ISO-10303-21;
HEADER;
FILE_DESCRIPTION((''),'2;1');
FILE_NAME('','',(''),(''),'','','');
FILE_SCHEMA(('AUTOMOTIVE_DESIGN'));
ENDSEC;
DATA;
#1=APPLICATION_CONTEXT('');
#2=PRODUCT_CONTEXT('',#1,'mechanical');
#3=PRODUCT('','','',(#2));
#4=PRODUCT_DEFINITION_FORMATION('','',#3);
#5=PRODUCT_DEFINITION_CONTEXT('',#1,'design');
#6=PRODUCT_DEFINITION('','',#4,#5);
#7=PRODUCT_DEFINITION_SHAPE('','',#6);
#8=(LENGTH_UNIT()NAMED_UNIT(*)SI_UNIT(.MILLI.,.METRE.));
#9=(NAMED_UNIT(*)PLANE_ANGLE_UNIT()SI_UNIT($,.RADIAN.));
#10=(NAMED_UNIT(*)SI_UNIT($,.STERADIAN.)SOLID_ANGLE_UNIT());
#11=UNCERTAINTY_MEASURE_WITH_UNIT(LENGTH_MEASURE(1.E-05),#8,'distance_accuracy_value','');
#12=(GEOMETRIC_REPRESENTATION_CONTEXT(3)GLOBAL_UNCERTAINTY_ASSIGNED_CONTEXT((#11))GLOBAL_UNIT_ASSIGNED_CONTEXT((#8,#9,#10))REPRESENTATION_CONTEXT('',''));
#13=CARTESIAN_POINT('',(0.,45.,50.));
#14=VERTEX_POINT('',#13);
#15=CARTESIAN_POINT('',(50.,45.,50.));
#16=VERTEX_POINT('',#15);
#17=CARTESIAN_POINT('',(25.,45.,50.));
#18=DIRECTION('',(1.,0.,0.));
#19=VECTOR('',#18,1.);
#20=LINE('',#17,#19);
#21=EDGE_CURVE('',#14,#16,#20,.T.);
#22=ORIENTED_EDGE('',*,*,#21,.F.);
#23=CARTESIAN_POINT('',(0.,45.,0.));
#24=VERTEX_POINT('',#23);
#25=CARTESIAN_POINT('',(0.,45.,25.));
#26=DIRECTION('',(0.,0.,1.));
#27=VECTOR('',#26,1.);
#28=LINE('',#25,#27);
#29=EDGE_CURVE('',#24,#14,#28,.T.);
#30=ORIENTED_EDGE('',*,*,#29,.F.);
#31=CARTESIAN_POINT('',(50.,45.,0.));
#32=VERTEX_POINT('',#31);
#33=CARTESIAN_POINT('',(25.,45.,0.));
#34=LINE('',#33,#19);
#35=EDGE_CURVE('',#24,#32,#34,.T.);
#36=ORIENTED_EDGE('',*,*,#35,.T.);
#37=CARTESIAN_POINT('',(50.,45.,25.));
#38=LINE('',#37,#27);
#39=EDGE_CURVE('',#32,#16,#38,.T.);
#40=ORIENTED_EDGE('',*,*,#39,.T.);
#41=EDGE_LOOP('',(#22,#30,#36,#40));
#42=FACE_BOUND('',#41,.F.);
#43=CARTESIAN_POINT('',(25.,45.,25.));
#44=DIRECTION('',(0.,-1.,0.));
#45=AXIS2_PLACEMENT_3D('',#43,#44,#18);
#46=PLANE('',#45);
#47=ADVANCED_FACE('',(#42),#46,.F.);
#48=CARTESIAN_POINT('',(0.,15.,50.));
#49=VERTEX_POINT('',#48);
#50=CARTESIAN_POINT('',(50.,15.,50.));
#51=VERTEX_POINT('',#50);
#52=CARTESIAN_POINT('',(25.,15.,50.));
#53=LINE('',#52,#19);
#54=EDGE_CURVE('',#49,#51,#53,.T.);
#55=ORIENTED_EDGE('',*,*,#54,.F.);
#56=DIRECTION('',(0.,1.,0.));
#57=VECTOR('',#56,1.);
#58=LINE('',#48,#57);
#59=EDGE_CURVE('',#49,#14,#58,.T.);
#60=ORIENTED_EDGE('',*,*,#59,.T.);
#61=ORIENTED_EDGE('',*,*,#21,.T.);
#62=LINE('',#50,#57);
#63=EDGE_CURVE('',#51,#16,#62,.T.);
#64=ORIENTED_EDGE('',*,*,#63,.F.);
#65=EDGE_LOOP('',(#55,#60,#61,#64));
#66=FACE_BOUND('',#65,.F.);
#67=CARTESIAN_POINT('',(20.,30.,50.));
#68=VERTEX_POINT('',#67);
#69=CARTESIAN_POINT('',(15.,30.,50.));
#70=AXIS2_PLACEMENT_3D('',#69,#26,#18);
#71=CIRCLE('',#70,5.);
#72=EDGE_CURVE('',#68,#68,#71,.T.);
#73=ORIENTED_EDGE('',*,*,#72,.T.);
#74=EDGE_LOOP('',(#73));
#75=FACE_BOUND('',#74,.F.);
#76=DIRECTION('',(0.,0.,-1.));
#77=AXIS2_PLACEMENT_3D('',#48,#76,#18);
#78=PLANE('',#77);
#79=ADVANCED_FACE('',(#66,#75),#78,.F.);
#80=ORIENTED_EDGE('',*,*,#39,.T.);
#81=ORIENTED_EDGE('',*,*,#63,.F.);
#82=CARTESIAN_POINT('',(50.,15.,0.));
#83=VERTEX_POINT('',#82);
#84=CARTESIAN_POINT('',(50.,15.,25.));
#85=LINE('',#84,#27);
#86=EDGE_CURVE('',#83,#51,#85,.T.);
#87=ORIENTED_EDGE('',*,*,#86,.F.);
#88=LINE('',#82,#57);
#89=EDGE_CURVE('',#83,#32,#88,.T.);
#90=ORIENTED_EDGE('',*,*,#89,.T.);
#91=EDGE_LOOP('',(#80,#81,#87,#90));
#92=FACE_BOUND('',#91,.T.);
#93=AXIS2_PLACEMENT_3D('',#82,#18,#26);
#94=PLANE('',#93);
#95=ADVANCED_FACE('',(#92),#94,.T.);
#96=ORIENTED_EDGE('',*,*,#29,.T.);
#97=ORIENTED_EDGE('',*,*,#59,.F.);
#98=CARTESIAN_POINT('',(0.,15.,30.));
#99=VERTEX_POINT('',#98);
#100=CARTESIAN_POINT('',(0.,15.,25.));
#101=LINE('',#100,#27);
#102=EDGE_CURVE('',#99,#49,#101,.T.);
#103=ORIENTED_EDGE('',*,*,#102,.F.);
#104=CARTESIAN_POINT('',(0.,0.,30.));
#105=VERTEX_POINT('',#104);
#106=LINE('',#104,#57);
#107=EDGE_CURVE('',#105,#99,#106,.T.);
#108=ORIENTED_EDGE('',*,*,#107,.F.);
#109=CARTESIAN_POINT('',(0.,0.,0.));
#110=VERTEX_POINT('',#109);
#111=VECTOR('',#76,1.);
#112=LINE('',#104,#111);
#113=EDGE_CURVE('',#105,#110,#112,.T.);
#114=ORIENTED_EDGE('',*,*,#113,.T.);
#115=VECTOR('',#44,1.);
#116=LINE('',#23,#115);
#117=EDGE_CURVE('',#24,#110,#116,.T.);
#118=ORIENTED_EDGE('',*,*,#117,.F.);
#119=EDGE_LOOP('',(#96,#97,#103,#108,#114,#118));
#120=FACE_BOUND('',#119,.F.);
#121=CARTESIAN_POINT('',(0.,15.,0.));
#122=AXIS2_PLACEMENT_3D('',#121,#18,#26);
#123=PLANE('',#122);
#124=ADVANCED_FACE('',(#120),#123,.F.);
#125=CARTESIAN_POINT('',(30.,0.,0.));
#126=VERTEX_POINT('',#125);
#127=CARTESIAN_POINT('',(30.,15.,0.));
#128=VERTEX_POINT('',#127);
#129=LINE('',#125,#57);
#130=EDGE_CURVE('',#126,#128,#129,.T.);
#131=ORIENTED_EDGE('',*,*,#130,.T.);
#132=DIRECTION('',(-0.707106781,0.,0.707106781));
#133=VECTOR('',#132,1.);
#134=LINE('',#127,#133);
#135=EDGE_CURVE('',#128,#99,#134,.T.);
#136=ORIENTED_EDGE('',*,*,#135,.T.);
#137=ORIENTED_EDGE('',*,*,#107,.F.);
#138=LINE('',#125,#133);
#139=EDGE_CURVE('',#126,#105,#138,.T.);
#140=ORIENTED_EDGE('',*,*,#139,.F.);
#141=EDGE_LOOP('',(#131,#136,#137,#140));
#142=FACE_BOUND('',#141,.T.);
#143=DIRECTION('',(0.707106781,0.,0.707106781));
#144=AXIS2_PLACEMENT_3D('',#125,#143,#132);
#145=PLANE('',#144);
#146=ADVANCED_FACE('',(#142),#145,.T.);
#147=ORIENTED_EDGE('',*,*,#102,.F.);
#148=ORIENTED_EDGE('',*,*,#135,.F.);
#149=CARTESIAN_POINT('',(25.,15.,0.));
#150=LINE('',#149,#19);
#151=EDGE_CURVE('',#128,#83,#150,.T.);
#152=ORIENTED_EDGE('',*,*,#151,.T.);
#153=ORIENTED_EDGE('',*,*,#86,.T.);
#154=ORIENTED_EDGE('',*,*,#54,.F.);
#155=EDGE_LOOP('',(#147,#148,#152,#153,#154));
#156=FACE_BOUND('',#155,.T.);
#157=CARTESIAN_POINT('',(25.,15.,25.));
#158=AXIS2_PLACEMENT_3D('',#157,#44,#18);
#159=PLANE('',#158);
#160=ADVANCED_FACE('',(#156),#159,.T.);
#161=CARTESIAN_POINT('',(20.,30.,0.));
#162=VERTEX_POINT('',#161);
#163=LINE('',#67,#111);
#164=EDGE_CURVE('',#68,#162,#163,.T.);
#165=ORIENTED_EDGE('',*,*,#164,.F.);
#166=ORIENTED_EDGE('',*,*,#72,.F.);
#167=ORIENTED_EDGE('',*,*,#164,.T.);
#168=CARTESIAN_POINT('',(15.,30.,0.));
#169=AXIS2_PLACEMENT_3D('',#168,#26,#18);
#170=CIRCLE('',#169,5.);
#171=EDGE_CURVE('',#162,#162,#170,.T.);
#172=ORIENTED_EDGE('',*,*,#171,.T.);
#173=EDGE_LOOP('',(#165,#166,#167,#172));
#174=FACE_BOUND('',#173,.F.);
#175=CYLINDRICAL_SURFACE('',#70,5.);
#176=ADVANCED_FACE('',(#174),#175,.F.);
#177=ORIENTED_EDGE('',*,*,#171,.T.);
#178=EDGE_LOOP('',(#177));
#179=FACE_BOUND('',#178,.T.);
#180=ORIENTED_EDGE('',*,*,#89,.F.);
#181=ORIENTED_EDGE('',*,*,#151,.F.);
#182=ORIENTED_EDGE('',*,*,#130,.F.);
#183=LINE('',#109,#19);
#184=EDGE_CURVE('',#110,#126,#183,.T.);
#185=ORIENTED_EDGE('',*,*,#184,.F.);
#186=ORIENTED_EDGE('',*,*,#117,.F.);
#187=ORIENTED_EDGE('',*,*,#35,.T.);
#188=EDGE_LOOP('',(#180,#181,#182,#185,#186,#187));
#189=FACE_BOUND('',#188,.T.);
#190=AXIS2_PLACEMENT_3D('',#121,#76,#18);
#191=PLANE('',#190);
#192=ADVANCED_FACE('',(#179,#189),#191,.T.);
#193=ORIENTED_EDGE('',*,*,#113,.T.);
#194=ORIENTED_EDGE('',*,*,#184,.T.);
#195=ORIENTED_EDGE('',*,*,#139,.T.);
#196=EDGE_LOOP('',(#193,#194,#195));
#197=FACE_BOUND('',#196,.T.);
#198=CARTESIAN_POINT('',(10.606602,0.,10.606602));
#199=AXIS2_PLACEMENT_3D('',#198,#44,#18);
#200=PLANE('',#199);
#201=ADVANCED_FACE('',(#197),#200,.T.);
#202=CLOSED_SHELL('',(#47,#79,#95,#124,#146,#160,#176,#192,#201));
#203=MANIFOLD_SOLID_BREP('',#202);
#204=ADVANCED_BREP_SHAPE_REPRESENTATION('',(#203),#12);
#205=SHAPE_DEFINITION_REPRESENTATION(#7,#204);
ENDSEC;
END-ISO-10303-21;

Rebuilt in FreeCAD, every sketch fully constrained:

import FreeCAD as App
import Part
import Sketcher

doc = App.newDocument("Part")
body = doc.addObject("PartDesign::Body", "Body")

sketch1 = body.newObject("Sketcher::SketchObject", "Sketch")
sketch1.AttachmentSupport = (doc.getObject("XZ_Plane"), [""])
sketch1.MapMode = "FlatFace"
sketch1.addGeometry(Part.LineSegment(App.Vector(0, 30, 0), App.Vector(0, 0, 0)), False)
sketch1.addGeometry(Part.LineSegment(App.Vector(0, 0, 0), App.Vector(30, 0, 0)), False)
sketch1.addGeometry(Part.LineSegment(App.Vector(30, 0, 0), App.Vector(0, 30, 0)), False)
sketch1.addConstraint(Sketcher.Constraint("Coincident", 0, 2, 1, 1))
sketch1.addConstraint(Sketcher.Constraint("Coincident", 1, 2, 2, 1))
sketch1.addConstraint(Sketcher.Constraint("Coincident", 2, 2, 0, 1))
sketch1.addConstraint(Sketcher.Constraint("Vertical", 0))
sketch1.addConstraint(Sketcher.Constraint("Horizontal", 1))
sketch1.addConstraint(Sketcher.Constraint("Coincident", 0, 2, -1, 1))
sketch1.addConstraint(Sketcher.Constraint("Equal", 1, 0))
sketch1.addConstraint(Sketcher.Constraint("DistanceX", 1, 1, 1, 2, 30.0))
pad1 = body.newObject("PartDesign::Pad", "Pad")
pad1.Profile = sketch1
pad1.Length = 15
pad1.Reversed = True

sketch2 = body.newObject("Sketcher::SketchObject", "Sketch001")
sketch2.AttachmentSupport = (doc.getObject("XZ_Plane"), [""])
sketch2.MapMode = "FlatFace"
sketch2.AttachmentOffset = App.Placement(App.Vector(0, 0, -15), App.Rotation())
sketch2.addGeometry(Part.LineSegment(App.Vector(0, 50, 0), App.Vector(0, 0, 0)), False)
sketch2.addGeometry(Part.LineSegment(App.Vector(0, 0, 0), App.Vector(50, 0, 0)), False)
sketch2.addGeometry(Part.LineSegment(App.Vector(50, 0, 0), App.Vector(50, 50, 0)), False)
sketch2.addGeometry(Part.LineSegment(App.Vector(50, 50, 0), App.Vector(0, 50, 0)), False)
sketch2.addConstraint(Sketcher.Constraint("Coincident", 0, 2, 1, 1))
sketch2.addConstraint(Sketcher.Constraint("Coincident", 1, 2, 2, 1))
sketch2.addConstraint(Sketcher.Constraint("Coincident", 2, 2, 3, 1))
sketch2.addConstraint(Sketcher.Constraint("Coincident", 3, 2, 0, 1))
sketch2.addConstraint(Sketcher.Constraint("Vertical", 0))
sketch2.addConstraint(Sketcher.Constraint("Horizontal", 1))
sketch2.addConstraint(Sketcher.Constraint("Vertical", 2))
sketch2.addConstraint(Sketcher.Constraint("Horizontal", 3))
sketch2.addConstraint(Sketcher.Constraint("Coincident", 0, 2, -1, 1))
sketch2.addConstraint(Sketcher.Constraint("Equal", 3, 0))
sketch2.addConstraint(Sketcher.Constraint("DistanceX", 1, 1, 1, 2, 50.0))
pad2 = body.newObject("PartDesign::Pad", "Pad001")
pad2.Profile = sketch2
pad2.Length = 30
pad2.Reversed = True

sketch3 = body.newObject("Sketcher::SketchObject", "Sketch002")
sketch3.AttachmentSupport = (doc.getObject("XY_Plane"), [""])
sketch3.MapMode = "FlatFace"
sketch3.AttachmentOffset = App.Placement(App.Vector(0, 0, 50), App.Rotation())
sketch3.addGeometry(Part.Circle(App.Vector(15, 30, 0), App.Vector(0, 0, 1), 5), False)
sketch3.addConstraint(Sketcher.Constraint("Diameter", 0, 10.0))
sketch3.addConstraint(Sketcher.Constraint("DistanceX", -1, 1, 0, 3, 15.0))
sketch3.addConstraint(Sketcher.Constraint("DistanceY", -1, 1, 0, 3, 30.0))
pocket1 = body.newObject("PartDesign::Pocket", "Pocket")
pocket1.Profile = sketch3
pocket1.Type = "ThroughAll"

doc.recompute()
